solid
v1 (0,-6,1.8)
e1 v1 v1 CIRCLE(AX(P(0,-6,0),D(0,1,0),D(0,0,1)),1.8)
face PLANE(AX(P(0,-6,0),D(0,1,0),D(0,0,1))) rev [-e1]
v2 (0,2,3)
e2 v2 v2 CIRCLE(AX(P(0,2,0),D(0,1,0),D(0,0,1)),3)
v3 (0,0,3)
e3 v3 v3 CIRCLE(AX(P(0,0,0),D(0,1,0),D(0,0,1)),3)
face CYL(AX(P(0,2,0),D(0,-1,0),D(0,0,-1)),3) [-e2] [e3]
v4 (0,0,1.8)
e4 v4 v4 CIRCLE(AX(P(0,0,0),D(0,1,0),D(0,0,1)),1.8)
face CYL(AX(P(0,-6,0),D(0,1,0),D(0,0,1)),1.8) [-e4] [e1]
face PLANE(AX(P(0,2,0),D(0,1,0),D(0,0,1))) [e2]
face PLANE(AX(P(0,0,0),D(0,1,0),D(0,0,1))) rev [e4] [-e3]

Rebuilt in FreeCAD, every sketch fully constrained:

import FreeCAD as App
import Part
import Sketcher
Q = App.Units.Quantity

doc = App.newDocument("Part")
body = doc.addObject("PartDesign::Body", "Body")

# Sketch on XZ plane
sketch1 = body.newObject("Sketcher::SketchObject", "Sketch")
sketch1.AttachmentSupport = (doc.getObject("XZ_Plane"), [""])
sketch1.MapMode = "FlatFace"
sketch1.addGeometry(Part.Circle(App.Vector(0, 0, 0), App.Vector(0, 0, 1), 1.8), False)
sketch1.addConstraint(Sketcher.Constraint("Coincident", 0, 3, -1, 1))
sketch1.addConstraint(Sketcher.Constraint("Diameter", 0, Q("3.6 mm")))
pad1 = body.newObject("PartDesign::Pad", "Pad")
pad1.Profile = sketch1
pad1.Length = 6

# Sketch on XZ plane
sketch2 = body.newObject("Sketcher::SketchObject", "Sketch001")
sketch2.AttachmentSupport = (doc.getObject("XZ_Plane"), [""])
sketch2.MapMode = "FlatFace"
sketch2.addGeometry(Part.Circle(App.Vector(0, 0, 0), App.Vector(0, 0, 1), 3), False)
sketch2.addConstraint(Sketcher.Constraint("Coincident", 0, 3, -1, 1))
sketch2.addConstraint(Sketcher.Constraint("Diameter", 0, Q("6 mm")))
pad2 = body.newObject("PartDesign::Pad", "Pad001")
pad2.Profile = sketch2
pad2.Length = 2
pad2.Reversed = True

doc.recompute()
